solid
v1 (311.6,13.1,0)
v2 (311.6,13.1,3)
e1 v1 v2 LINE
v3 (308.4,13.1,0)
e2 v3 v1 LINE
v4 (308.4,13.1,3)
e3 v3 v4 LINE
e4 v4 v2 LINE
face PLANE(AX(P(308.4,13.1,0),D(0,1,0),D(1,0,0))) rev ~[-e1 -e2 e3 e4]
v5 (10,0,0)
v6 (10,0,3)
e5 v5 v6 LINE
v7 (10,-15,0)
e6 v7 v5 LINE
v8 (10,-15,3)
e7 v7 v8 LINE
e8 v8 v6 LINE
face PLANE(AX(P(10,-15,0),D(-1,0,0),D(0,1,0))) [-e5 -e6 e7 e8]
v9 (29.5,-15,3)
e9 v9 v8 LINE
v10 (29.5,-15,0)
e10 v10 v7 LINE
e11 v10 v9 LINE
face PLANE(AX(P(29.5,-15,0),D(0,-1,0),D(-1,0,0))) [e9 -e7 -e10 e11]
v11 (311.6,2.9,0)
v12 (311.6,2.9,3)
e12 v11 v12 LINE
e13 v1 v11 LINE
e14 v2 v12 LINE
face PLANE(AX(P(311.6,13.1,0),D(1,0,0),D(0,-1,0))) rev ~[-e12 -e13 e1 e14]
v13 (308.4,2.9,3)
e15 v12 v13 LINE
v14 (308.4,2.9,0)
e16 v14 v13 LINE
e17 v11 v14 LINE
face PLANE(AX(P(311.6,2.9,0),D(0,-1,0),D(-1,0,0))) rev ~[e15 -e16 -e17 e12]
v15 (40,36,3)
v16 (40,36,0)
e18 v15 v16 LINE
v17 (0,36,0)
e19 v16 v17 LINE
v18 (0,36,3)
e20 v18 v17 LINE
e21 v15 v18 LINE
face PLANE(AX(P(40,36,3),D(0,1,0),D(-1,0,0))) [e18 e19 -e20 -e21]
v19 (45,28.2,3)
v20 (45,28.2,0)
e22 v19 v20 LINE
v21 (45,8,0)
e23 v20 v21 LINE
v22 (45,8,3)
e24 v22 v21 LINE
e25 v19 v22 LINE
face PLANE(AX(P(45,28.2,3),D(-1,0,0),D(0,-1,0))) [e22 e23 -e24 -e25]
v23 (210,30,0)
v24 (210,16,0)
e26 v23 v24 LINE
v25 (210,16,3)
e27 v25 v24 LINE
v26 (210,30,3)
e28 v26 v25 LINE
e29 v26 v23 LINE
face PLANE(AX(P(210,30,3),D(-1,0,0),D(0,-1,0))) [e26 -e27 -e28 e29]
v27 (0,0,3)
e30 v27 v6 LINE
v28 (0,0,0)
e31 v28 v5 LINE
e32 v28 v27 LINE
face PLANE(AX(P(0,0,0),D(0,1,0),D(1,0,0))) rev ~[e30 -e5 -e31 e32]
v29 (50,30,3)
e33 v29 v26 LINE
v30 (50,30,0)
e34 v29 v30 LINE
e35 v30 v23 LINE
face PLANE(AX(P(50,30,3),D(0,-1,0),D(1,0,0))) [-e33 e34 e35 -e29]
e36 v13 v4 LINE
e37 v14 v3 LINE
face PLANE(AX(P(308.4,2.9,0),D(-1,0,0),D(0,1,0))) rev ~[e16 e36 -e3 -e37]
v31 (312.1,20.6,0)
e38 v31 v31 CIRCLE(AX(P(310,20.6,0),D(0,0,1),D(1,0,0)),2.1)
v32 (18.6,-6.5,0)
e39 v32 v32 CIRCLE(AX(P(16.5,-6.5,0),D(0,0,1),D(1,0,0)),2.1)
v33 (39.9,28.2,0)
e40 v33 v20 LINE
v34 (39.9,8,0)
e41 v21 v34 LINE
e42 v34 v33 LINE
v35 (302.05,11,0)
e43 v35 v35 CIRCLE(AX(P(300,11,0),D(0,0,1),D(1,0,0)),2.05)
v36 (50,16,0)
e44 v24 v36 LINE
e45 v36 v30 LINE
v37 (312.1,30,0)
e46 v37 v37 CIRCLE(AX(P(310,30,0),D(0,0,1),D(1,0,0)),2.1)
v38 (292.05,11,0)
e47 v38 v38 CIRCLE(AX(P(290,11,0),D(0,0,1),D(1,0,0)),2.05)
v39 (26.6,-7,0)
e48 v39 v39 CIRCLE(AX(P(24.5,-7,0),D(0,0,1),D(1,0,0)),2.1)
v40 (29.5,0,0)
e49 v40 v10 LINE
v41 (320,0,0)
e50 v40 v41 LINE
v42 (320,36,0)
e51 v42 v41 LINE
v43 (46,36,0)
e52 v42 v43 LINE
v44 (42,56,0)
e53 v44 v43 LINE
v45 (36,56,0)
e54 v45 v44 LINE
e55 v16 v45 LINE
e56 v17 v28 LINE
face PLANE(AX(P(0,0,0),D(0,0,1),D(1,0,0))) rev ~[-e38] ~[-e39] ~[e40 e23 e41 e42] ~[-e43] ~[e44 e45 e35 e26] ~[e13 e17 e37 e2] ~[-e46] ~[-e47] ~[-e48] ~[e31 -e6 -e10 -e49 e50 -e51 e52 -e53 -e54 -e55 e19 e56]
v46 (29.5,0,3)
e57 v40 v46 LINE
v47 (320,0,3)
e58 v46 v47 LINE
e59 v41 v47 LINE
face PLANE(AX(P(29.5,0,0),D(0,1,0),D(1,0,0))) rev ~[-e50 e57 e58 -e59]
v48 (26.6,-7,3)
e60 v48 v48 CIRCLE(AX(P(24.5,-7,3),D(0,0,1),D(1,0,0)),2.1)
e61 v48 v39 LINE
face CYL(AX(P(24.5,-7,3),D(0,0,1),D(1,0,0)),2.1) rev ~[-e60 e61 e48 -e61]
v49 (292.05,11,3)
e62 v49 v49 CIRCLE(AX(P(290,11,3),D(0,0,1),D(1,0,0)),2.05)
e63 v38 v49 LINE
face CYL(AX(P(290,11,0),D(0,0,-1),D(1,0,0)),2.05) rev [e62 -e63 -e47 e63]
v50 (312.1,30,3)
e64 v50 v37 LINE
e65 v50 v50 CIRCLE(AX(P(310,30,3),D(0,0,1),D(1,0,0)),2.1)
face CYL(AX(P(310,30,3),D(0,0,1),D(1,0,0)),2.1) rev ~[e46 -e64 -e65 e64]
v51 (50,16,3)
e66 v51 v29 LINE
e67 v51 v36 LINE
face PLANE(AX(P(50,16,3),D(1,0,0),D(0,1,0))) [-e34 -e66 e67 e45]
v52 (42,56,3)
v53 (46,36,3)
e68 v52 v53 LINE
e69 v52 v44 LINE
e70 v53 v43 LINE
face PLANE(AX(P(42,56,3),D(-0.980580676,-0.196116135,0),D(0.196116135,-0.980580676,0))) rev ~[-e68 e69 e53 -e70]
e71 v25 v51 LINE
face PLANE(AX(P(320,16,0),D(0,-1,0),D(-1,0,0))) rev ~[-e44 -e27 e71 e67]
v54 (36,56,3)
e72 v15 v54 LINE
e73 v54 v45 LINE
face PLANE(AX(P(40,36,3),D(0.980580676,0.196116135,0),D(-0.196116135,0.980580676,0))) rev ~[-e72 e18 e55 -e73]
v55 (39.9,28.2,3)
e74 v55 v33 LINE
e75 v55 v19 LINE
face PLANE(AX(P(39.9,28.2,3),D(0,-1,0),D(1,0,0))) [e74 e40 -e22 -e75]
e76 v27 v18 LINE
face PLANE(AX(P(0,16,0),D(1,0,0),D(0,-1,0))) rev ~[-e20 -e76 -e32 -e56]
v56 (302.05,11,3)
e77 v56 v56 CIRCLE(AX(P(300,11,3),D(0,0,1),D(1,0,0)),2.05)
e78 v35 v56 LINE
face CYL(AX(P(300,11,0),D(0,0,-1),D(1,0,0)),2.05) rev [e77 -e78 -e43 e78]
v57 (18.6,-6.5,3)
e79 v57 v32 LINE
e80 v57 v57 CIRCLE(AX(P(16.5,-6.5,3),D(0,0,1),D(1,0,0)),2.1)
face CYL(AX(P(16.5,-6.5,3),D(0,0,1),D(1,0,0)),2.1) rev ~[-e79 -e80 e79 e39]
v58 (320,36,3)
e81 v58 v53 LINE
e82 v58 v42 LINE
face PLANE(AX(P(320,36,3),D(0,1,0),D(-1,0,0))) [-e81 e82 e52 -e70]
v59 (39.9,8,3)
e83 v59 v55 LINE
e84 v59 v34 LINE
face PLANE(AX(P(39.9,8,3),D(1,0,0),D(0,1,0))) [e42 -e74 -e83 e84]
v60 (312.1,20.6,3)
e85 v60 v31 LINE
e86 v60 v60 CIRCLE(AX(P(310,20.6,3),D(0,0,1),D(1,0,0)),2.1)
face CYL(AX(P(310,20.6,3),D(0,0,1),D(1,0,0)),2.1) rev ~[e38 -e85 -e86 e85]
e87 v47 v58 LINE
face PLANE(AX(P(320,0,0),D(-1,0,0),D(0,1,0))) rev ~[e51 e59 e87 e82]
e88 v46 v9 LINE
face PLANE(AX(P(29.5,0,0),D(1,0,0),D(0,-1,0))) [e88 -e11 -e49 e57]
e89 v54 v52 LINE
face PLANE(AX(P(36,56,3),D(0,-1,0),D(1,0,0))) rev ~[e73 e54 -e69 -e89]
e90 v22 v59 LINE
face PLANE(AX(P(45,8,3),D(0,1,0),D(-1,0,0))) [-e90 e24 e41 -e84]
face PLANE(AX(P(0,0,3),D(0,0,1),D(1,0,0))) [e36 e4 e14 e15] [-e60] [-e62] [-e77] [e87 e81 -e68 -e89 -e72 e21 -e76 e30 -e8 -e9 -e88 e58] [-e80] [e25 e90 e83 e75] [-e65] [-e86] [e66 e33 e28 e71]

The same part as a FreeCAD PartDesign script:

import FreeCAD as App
import Part
import Sketcher

doc = App.newDocument("Part")
body = doc.addObject("PartDesign::Body", "Body")

# Sketch on XY plane
sketch1 = doc.addObject("Sketcher::SketchObject", "Sketch")
body.addObject(sketch1)
sketch1.AttachmentSupport = (doc.XY_Plane, [""])
sketch1.MapMode = "FlatFace"
sketch1.addGeometry([
    Part.LineSegment(App.Vector(0, 16, 0), App.Vector(0, 0, 0)),  # 0
    Part.LineSegment(App.Vector(0, 0, 0), App.Vector(10, 0, 0)),  # 1
    Part.LineSegment(App.Vector(10, 0, 0), App.Vector(10, -15, 0)),  # 2
    Part.LineSegment(App.Vector(10, -15, 0), App.Vector(29.5, -15, 0)),  # 3
    Part.LineSegment(App.Vector(29.5, -15, 0), App.Vector(29.5, 0, 0)),  # 4
    Part.LineSegment(App.Vector(29.5, 0, 0), App.Vector(320, 0, 0)),  # 5
    Part.LineSegment(App.Vector(320, 0, 0), App.Vector(320, 16, 0)),  # 6
    Part.LineSegment(App.Vector(320, 16, 0), App.Vector(0, 16, 0)),  # 7
    Part.LineSegment(App.Vector(308.4, 2.9, 0), App.Vector(308.4, 13.1, 0)),  # 8
    Part.LineSegment(App.Vector(308.4, 13.1, 0), App.Vector(311.6, 13.1, 0)),  # 9
    Part.LineSegment(App.Vector(311.6, 13.1, 0), App.Vector(311.6, 2.9, 0)),  # 10
    Part.LineSegment(App.Vector(311.6, 2.9, 0), App.Vector(308.4, 2.9, 0)),  # 11
    Part.Circle(App.Vector(290, 11, 0), App.Vector(0, 0, 1), 2),  # 12
    Part.Circle(App.Vector(300, 11, 0), App.Vector(0, 0, 1), 2),  # 13
], False)
sketch1.addConstraint([
    Sketcher.Constraint("Coincident", 0, 2, 1, 1),
    Sketcher.Constraint("Coincident", 1, 2, 2, 1),
    Sketcher.Constraint("Coincident", 2, 2, 3, 1),
    Sketcher.Constraint("Coincident", 3, 2, 4, 1),
    Sketcher.Constraint("Coincident", 4, 2, 5, 1),
    Sketcher.Constraint("Coincident", 5, 2, 6, 1),
    Sketcher.Constraint("Coincident", 6, 2, 7, 1),
    Sketcher.Constraint("Coincident", 7, 2, 0, 1),
    Sketcher.Constraint("Coincident", 8, 2, 9, 1),
    Sketcher.Constraint("Coincident", 9, 2, 10, 1),
    Sketcher.Constraint("Coincident", 10, 2, 11, 1),
    Sketcher.Constraint("Coincident", 11, 2, 8, 1),
    Sketcher.Constraint("Vertical", 0),
    Sketcher.Constraint("Horizontal", 1),
    Sketcher.Constraint("Vertical", 2),
    Sketcher.Constraint("Horizontal", 3),
    Sketcher.Constraint("Vertical", 4),
    Sketcher.Constraint("Horizontal", 5),
    Sketcher.Constraint("Vertical", 6),
    Sketcher.Constraint("Horizontal", 7),
    Sketcher.Constraint("Vertical", 8),
    Sketcher.Constraint("Horizontal", 9),
    Sketcher.Constraint("Vertical", 10),
    Sketcher.Constraint("Horizontal", 11),
    Sketcher.Constraint("Coincident", 0, 2, -1, 1),
    Sketcher.Constraint("Equal", 12, 13),
    Sketcher.Constraint("PointOnObject", 4, 2, -1),
    Sketcher.Constraint("Horizontal", 12, 3, 13, 3),
    Sketcher.Constraint("Diameter", 12, 4.1),
    Sketcher.Constraint("DistanceX", 1, 1, 1, 2, 10.0),
    Sketcher.Constraint("DistanceX", 7, 2, 7, 1, 320.0),
    Sketcher.Constraint("DistanceY", 0, 2, 0, 1, 16.0),
    Sketcher.Constraint("DistanceY", 2, 2, 2, 1, 15.0),
    Sketcher.Constraint("DistanceX", 3, 1, 3, 2, 19.5),
    Sketcher.Constraint("DistanceX", 9, 1, 9, 2, 3.2),
    Sketcher.Constraint("DistanceY", 8, 1, 8, 2, 10.2),
    Sketcher.Constraint("DistanceX", 12, 3, 13, 3, 10.0),
    Sketcher.Constraint("DistanceX", 13, 3, 5, 2, 20.0),
    Sketcher.Constraint("DistanceY", 13, 3, 6, 2, 5.0),
    Sketcher.Constraint("DistanceX", -1, 1, 8, 2, 308.4),
    Sketcher.Constraint("DistanceY", -1, 1, 8, 2, 13.1),
])
pad1 = doc.addObject("PartDesign::Pad", "Pad")
body.addObject(pad1)
pad1.Profile = sketch1
pad1.Length = 3

# Sketch on XY plane
sketch2 = doc.addObject("Sketcher::SketchObject", "Sketch001")
body.addObject(sketch2)
sketch2.AttachmentSupport = (doc.XY_Plane, [""])
sketch2.MapMode = "FlatFace"
sketch2.AttachmentOffset = App.Placement(App.Vector(0, 0, 3), App.Rotation())
sketch2.addGeometry([
    Part.LineSegment(App.Vector(0, 36, 0), App.Vector(0, 16, 0)),  # 0
    Part.LineSegment(App.Vector(0, 16, 0), App.Vector(50, 16, 0)),  # 1
    Part.LineSegment(App.Vector(50, 16, 0), App.Vector(50, 30, 0)),  # 2
    Part.LineSegment(App.Vector(50, 30, 0), App.Vector(210, 30, 0)),  # 3
    Part.LineSegment(App.Vector(210, 30, 0), App.Vector(210, 16, 0)),  # 4
    Part.LineSegment(App.Vector(210, 16, 0), App.Vector(320, 16, 0)),  # 5
    Part.LineSegment(App.Vector(320, 16, 0), App.Vector(320, 36, 0)),  # 6
    Part.LineSegment(App.Vector(320, 36, 0), App.Vector(46, 36, 0)),  # 7
    Part.LineSegment(App.Vector(46, 36, 0), App.Vector(42, 56, 0)),  # 8
    Part.LineSegment(App.Vector(42, 56, 0), App.Vector(36, 56, 0)),  # 9
    Part.LineSegment(App.Vector(36, 56, 0), App.Vector(40, 36, 0)),  # 10
    Part.LineSegment(App.Vector(40, 36, 0), App.Vector(0, 36, 0)),  # 11
    Part.Circle(App.Vector(310, 20.6, 0), App.Vector(0, 0, 1), 2.1),  # 12
    Part.Circle(App.Vector(310, 30, 0), App.Vector(0, 0, 1), 2.1),  # 13
], False)
sketch2.addConstraint([
    Sketcher.Constraint("Coincident", 0, 2, 1, 1),
    Sketcher.Constraint("Coincident", 1, 2, 2, 1),
    Sketcher.Constraint("Coincident", 2, 2, 3, 1),
    Sketcher.Constraint("Coincident", 3, 2, 4, 1),
    Sketcher.Constraint("Coincident", 4, 2, 5, 1),
    Sketcher.Constraint("Coincident", 5, 2, 6, 1),
    Sketcher.Constraint("Coincident", 6, 2, 7, 1),
    Sketcher.Constraint("Coincident", 7, 2, 8, 1),
    Sketcher.Constraint("Coincident", 8, 2, 9, 1),
    Sketcher.Constraint("Coincident", 9, 2, 10, 1),
    Sketcher.Constraint("Coincident", 10, 2, 11, 1),
    Sketcher.Constraint("Coincident", 11, 2, 0, 1),
    Sketcher.Constraint("Vertical", 0),
    Sketcher.Constraint("Horizontal", 1),
    Sketcher.Constraint("Vertical", 2),
    Sketcher.Constraint("Horizontal", 3),
    Sketcher.Constraint("Vertical", 4),
    Sketcher.Constraint("Horizontal", 5),
    Sketcher.Constraint("Vertical", 6),
    Sketcher.Constraint("Horizontal", 7),
    Sketcher.Constraint("Horizontal", 9),
    Sketcher.Constraint("Horizontal", 11),
    Sketcher.Constraint("Equal", 12, 13),
    Sketcher.Constraint("PointOnObject", 0, 2, -2),
    Sketcher.Constraint("Parallel", 8, 10),
    Sketcher.Constraint("Horizontal", 13, 3, 2, 2),
    Sketcher.Constraint("Horizontal", 1, 2, 4, 2),
    Sketcher.Constraint("Horizontal", 7, 2, 10, 2),
    Sketcher.Constraint("Vertical", 12, 3, 13, 3),
    Sketcher.Constraint("Diameter", 12, 4.2),
    Sketcher.Constraint("DistanceX", 1, 1, 1, 2, 50.0),
    Sketcher.Constraint("DistanceX", 3, 1, 3, 2, 160.0),
    Sketcher.Constraint("DistanceX", 9, 2, 9, 1, 6.0),
    Sketcher.Constraint("DistanceX", 11, 2, 11, 1, 40.0),
    Sketcher.Constraint("DistanceY", 0, 2, 0, 1, 20.0),
    Sketcher.Constraint("DistanceY", 2, 1, 2, 2, 14.0),
    Sketcher.Constraint("DistanceX", 12, 3, 5, 2, 10.0),
    Sketcher.Constraint("DistanceX", 8, 2, 7, 2, 4.0),
    Sketcher.Constraint("DistanceY", 7, 2, 8, 2, 20.0),
    Sketcher.Constraint("DistanceY", 12, 3, 13, 3, 9.4),
    Sketcher.Constraint("DistanceX", 5, 1, 5, 2, 110.0),
    Sketcher.Constraint("DistanceY", -1, 1, 13, 3, 30.0),
])
pad2 = doc.addObject("PartDesign::Pad", "Pad001")
body.addObject(pad2)
pad2.Profile = sketch2
pad2.Length = 3
pad2.Reversed = True

# Sketch on XY plane
sketch3 = doc.addObject("Sketcher::SketchObject", "Sketch002")
body.addObject(sketch3)
sketch3.AttachmentSupport = (doc.XY_Plane, [""])
sketch3.MapMode = "FlatFace"
sketch3.AttachmentOffset = App.Placement(App.Vector(0, 0, 3), App.Rotation())
sketch3.addGeometry([
    Part.Circle(App.Vector(16.5, -6.5, 0), App.Vector(0, 0, 1), 2.1),
    Part.Circle(App.Vector(24.5, -7, 0), App.Vector(0, 0, 1), 2.1),
], False)
sketch3.addConstraint([
    Sketcher.Constraint("Equal", 0, 1),
    Sketcher.Constraint("Diameter", 0, 4.2),
    Sketcher.Constraint("DistanceY", 1, 3, -1, 1, 7.0),
    Sketcher.Constraint("DistanceX", 0, 3, 1, 3, 8.0),
    Sketcher.Constraint("DistanceY", 0, 3, -1, 1, 6.5),
    Sketcher.Constraint("DistanceX", -1, 1, 0, 3, 16.5),
])
pocket1 = doc.addObject("PartDesign::Pocket", "Pocket")
body.addObject(pocket1)
pocket1.Profile = sketch3
pocket1.Length = 3

# Sketch on XY plane
sketch4 = doc.addObject("Sketcher::SketchObject", "Sketch003")
body.addObject(sketch4)
sketch4.AttachmentSupport = (doc.XY_Plane, [""])
sketch4.MapMode = "FlatFace"
sketch4.AttachmentOffset = App.Placement(App.Vector(0, 0, 3), App.Rotation())
sketch4.addGeometry([
    Part.LineSegment(App.Vector(45, 28, 0), App.Vector(40, 28, 0)),
    Part.LineSegment(App.Vector(40, 28, 0), App.Vector(40, 8, 0)),
    Part.LineSegment(App.Vector(40, 8, 0), App.Vector(45, 8, 0)),
    Part.LineSegment(App.Vector(45, 8, 0), App.Vector(45, 28, 0)),
], False)
sketch4.addConstraint([
    Sketcher.Constraint("Coincident", 0, 2, 1, 1),
    Sketcher.Constraint("Coincident", 1, 2, 2, 1),
    Sketcher.Constraint("Coincident", 2, 2, 3, 1),
    Sketcher.Constraint("Coincident", 3, 2, 0, 1),
    Sketcher.Constraint("Horizontal", 0),
    Sketcher.Constraint("Vertical", 1),
    Sketcher.Constraint("Horizontal", 2),
    Sketcher.Constraint("Vertical", 3),
    Sketcher.Constraint("DistanceX", 0, 2, 0, 1, 5.1),
    Sketcher.Constraint("DistanceY", 1, 2, 1, 1, 20.2),
    Sketcher.Constraint("DistanceY", -1, 1, 1, 2, 8.0),
    Sketcher.Constraint("DistanceX", -1, 1, 2, 2, 45.0),
])
pocket2 = doc.addObject("PartDesign::Pocket", "Pocket001")
body.addObject(pocket2)
pocket2.Profile = sketch4
pocket2.Length = 3

doc.recompute()
